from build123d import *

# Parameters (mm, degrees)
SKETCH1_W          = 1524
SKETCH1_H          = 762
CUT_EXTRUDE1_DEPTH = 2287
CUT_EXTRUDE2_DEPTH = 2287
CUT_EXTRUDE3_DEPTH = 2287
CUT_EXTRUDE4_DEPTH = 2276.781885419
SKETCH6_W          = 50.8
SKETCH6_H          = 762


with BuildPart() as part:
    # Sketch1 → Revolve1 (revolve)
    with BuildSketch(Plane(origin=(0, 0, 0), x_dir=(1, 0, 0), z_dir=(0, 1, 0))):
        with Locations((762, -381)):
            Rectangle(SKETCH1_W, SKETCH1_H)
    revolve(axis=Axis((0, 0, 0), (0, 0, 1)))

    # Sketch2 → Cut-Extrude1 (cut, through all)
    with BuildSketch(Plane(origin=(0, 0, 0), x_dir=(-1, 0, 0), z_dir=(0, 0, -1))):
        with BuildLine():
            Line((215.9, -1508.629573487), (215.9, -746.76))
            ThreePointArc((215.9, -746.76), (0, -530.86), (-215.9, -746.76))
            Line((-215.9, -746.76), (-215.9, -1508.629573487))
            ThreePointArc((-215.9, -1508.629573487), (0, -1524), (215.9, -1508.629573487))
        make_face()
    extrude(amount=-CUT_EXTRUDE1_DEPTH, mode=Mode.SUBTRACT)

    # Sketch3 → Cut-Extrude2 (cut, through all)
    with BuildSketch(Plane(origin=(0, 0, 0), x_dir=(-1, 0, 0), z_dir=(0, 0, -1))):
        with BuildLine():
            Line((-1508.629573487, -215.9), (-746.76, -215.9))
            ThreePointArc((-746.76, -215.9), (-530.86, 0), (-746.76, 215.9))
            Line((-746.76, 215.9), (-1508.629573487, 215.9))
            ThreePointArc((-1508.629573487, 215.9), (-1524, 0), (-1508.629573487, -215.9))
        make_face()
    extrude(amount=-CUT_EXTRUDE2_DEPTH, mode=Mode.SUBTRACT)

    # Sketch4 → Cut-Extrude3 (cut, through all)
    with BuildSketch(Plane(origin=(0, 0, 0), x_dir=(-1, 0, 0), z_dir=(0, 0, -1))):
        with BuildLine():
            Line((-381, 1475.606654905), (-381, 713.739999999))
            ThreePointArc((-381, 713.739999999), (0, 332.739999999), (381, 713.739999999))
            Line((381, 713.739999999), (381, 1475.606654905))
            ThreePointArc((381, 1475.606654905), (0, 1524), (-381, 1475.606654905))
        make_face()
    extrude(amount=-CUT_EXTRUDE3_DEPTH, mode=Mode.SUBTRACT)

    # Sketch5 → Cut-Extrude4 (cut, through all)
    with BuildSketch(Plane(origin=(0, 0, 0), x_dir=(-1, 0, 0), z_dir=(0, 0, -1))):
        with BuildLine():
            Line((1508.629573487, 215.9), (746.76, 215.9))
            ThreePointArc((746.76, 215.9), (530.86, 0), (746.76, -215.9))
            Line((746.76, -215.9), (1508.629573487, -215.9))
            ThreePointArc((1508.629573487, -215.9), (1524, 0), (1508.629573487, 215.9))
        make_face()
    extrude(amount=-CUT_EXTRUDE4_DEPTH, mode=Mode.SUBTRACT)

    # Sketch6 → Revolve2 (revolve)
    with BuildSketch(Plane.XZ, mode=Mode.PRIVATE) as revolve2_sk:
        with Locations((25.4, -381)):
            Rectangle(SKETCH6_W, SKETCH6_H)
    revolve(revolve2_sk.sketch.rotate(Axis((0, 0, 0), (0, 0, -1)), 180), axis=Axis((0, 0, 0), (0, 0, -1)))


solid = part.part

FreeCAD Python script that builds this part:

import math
import FreeCAD as App
import Part
import Sketcher
from FreeCAD import Vector
Q = App.Units.Quantity


def add_polygon(sketch, points):
    """Adds a closed chain of lines whose ends are joined by coincident constraints."""
    first, n = sketch.GeometryCount, len(points)
    for a, b in zip(points, points[1:] + points[:1]):
        sketch.addGeometry(Part.LineSegment(App.Vector(*a, 0), App.Vector(*b, 0)), False)
    for i in range(n):
        sketch.addConstraint(Sketcher.Constraint("Coincident", first + i, 2, first + (i + 1) % n, 1))

doc = App.newDocument("Part")
body = doc.addObject("PartDesign::Body", "Body")

# Sketch on XZ plane
sketch1 = doc.addObject("Sketcher::SketchObject", "Sketch")
body.addObject(sketch1)
sketch1.AttachmentSupport = (doc.XZ_Plane, [""])
sketch1.MapMode = "FlatFace"
add_polygon(sketch1, [(0, 0), (0, 762), (1524, 762), (1524, 0)])  # lines 0-3
sketch1.addConstraint([
    Sketcher.Constraint("Vertical", 0),
    Sketcher.Constraint("Horizontal", 1),
    Sketcher.Constraint("Vertical", 2),
    Sketcher.Constraint("Horizontal", 3),
    Sketcher.Constraint("Coincident", 3, 2, -1, 1),
    Sketcher.Constraint("DistanceX", 1, 1, 1, 2, Q("60 in")),
    Sketcher.Constraint("DistanceY", 0, 1, 0, 2, Q("30 in")),
])
revolution = doc.addObject("PartDesign::Revolution", "Revolution")
body.addObject(revolution)
revolution.Profile = sketch1
revolution.ReferenceAxis = (sketch1, ["V_Axis"])
revolution.Angle = 360

# Sketch on XY plane
sketch2 = doc.addObject("Sketcher::SketchObject", "Sketch001")
body.addObject(sketch2)
sketch2.AttachmentSupport = (doc.XY_Plane, [""])
sketch2.MapMode = "FlatFace"
sketch2.addGeometry([
    Part.LineSegment(Vector(-216, -1509, 0), Vector(-216, -747, 0)),
    Part.ArcOfCircle(Part.Circle(Vector(0, -747, 0), Vector(0, 0, 1), 216), math.radians(0), math.radians(180)),
    Part.LineSegment(Vector(216, -747, 0), Vector(216, -1509, 0)),
    Part.ArcOfCircle(Part.Circle(Vector(0, 0, 0), Vector(0, 0, 1), 1524), math.radians(-98.14), math.radians(-81.86)),
], False)
sketch2.addConstraint([
    Sketcher.Constraint("Tangent", 0, 2, 1, 2),
    Sketcher.Constraint("Tangent", 1, 1, 2, 1),
    Sketcher.Constraint("Coincident", 2, 2, 3, 2),
    Sketcher.Constraint("Coincident", 3, 1, 0, 1),
    Sketcher.Constraint("Vertical", 0),
    Sketcher.Constraint("Vertical", 2),
    Sketcher.Constraint("Coincident", 3, 3, -1, 1),
    Sketcher.Constraint("PointOnObject", 1, 3, -2),
    Sketcher.Constraint("Radius", 3, Q("60 in")),
    Sketcher.Constraint("Radius", 1, Q("8.5 in")),
    Sketcher.Constraint("DistanceY", 1, 3, -1, 1, Q("29.4 in")),
])
pocket1 = doc.addObject("PartDesign::Pocket", "Pocket")
body.addObject(pocket1)
pocket1.Profile = sketch2
pocket1.Type = "ThroughAll"
pocket1.Reversed = True

# Sketch on XY plane
sketch3 = doc.addObject("Sketcher::SketchObject", "Sketch002")
body.addObject(sketch3)
sketch3.AttachmentSupport = (doc.XY_Plane, [""])
sketch3.MapMode = "FlatFace"
sketch3.addGeometry([
    Part.LineSegment(Vector(1509, -216, 0), Vector(747, -216, 0)),
    Part.ArcOfCircle(Part.Circle(Vector(747, 0, 0), Vector(0, 0, 1), 216), math.radians(90), math.radians(270)),
    Part.LineSegment(Vector(747, 216, 0), Vector(1509, 216, 0)),
    Part.ArcOfCircle(Part.Circle(Vector(0, 0, 0), Vector(0, 0, 1), 1524), math.radians(-8.14), math.radians(8.14)),
], False)
sketch3.addConstraint([
    Sketcher.Constraint("Tangent", 0, 2, 1, 2),
    Sketcher.Constraint("Tangent", 1, 1, 2, 1),
    Sketcher.Constraint("Coincident", 2, 2, 3, 2),
    Sketcher.Constraint("Coincident", 3, 1, 0, 1),
    Sketcher.Constraint("Horizontal", 0),
    Sketcher.Constraint("Horizontal", 2),
    Sketcher.Constraint("Coincident", 3, 3, -1, 1),
    Sketcher.Constraint("PointOnObject", 1, 3, -1),
    Sketcher.Constraint("Radius", 3, Q("60 in")),
    Sketcher.Constraint("Radius", 1, Q("8.5 in")),
    Sketcher.Constraint("DistanceX", -1, 1, 1, 3, Q("29.4 in")),
])
pocket2 = doc.addObject("PartDesign::Pocket", "Pocket001")
body.addObject(pocket2)
pocket2.Profile = sketch3
pocket2.Type = "ThroughAll"
pocket2.Reversed = True

# Sketch on XY plane
sketch4 = doc.addObject("Sketcher::SketchObject", "Sketch003")
body.addObject(sketch4)
sketch4.AttachmentSupport = (doc.XY_Plane, [""])
sketch4.MapMode = "FlatFace"
sketch4.addGeometry([
    Part.LineSegment(Vector(381, 1476, 0), Vector(381, 714, 0)),
    Part.ArcOfCircle(Part.Circle(Vector(0, 714, 0), Vector(0, 0, 1), 381), math.radians(180), math.radians(360)),
    Part.LineSegment(Vector(-381, 714, 0), Vector(-381, 1476, 0)),
    Part.ArcOfCircle(Part.Circle(Vector(0, 0, 0), Vector(0, 0, 1), 1524), math.radians(76), math.radians(104)),
], False)
sketch4.addConstraint([
    Sketcher.Constraint("Tangent", 0, 2, 1, 2),
    Sketcher.Constraint("Tangent", 1, 1, 2, 1),
    Sketcher.Constraint("Coincident", 2, 2, 3, 2),
    Sketcher.Constraint("Coincident", 3, 1, 0, 1),
    Sketcher.Constraint("Vertical", 0),
    Sketcher.Constraint("Vertical", 2),
    Sketcher.Constraint("Coincident", 3, 3, -1, 1),
    Sketcher.Constraint("PointOnObject", 1, 3, -2),
    Sketcher.Constraint("Radius", 1, Q("15 in")),
    Sketcher.Constraint("Radius", 3, Q("60 in")),
    Sketcher.Constraint("DistanceY", -1, 1, 1, 3, Q("28.1 in")),
])
pocket3 = doc.addObject("PartDesign::Pocket", "Pocket002")
body.addObject(pocket3)
pocket3.Profile = sketch4
pocket3.Type = "ThroughAll"
pocket3.Reversed = True

# Sketch on XY plane
sketch5 = doc.addObject("Sketcher::SketchObject", "Sketch004")
body.addObject(sketch5)
sketch5.AttachmentSupport = (doc.XY_Plane, [""])
sketch5.MapMode = "FlatFace"
sketch5.addGeometry([
    Part.LineSegment(Vector(-1509, 216, 0), Vector(-747, 216, 0)),
    Part.ArcOfCircle(Part.Circle(Vector(-747, 0, 0), Vector(0, 0, 1), 216), math.radians(-90), math.radians(90)),
    Part.LineSegment(Vector(-747, -216, 0), Vector(-1509, -216, 0)),
    Part.ArcOfCircle(Part.Circle(Vector(0, 0, 0), Vector(0, 0, 1), 1524), math.radians(171.86), math.radians(188.14)),
], False)
sketch5.addConstraint([
    Sketcher.Constraint("Tangent", 0, 2, 1, 2),
    Sketcher.Constraint("Tangent", 1, 1, 2, 1),
    Sketcher.Constraint("Coincident", 2, 2, 3, 2),
    Sketcher.Constraint("Coincident", 3, 1, 0, 1),
    Sketcher.Constraint("Horizontal", 0),
    Sketcher.Constraint("Horizontal", 2),
    Sketcher.Constraint("Coincident", 3, 3, -1, 1),
    Sketcher.Constraint("PointOnObject", 1, 3, -1),
    Sketcher.Constraint("Radius", 3, Q("60 in")),
    Sketcher.Constraint("Radius", 1, Q("8.5 in")),
    Sketcher.Constraint("DistanceX", 1, 3, -1, 1, Q("29.4 in")),
])
pocket4 = doc.addObject("PartDesign::Pocket", "Pocket003")
body.addObject(pocket4)
pocket4.Profile = sketch5
pocket4.Type = "ThroughAll"
pocket4.Reversed = True

# Sketch on XZ plane
sketch6 = doc.addObject("Sketcher::SketchObject", "Sketch005")
body.addObject(sketch6)
sketch6.AttachmentSupport = (doc.XZ_Plane, [""])
sketch6.MapMode = "FlatFace"
add_polygon(sketch6, [(0, 0), (0, -762), (51, -762), (51, 0)])  # lines 0-3
sketch6.addConstraint([
    Sketcher.Constraint("Vertical", 0),
    Sketcher.Constraint("Horizontal", 1),
    Sketcher.Constraint("Vertical", 2),
    Sketcher.Constraint("Horizontal", 3),
    Sketcher.Constraint("Coincident", 3, 2, -1, 1),
    Sketcher.Constraint("DistanceX", 1, 1, 1, 2, Q("2 in")),
    Sketcher.Constraint("DistanceY", 0, 2, 0, 1, Q("30 in")),
])
revolution2 = doc.addObject("PartDesign::Revolution", "Revolution001")
body.addObject(revolution2)
revolution2.Profile = sketch6
revolution2.ReferenceAxis = (sketch6, ["V_Axis"])
revolution2.Angle = 360

doc.recompute()
